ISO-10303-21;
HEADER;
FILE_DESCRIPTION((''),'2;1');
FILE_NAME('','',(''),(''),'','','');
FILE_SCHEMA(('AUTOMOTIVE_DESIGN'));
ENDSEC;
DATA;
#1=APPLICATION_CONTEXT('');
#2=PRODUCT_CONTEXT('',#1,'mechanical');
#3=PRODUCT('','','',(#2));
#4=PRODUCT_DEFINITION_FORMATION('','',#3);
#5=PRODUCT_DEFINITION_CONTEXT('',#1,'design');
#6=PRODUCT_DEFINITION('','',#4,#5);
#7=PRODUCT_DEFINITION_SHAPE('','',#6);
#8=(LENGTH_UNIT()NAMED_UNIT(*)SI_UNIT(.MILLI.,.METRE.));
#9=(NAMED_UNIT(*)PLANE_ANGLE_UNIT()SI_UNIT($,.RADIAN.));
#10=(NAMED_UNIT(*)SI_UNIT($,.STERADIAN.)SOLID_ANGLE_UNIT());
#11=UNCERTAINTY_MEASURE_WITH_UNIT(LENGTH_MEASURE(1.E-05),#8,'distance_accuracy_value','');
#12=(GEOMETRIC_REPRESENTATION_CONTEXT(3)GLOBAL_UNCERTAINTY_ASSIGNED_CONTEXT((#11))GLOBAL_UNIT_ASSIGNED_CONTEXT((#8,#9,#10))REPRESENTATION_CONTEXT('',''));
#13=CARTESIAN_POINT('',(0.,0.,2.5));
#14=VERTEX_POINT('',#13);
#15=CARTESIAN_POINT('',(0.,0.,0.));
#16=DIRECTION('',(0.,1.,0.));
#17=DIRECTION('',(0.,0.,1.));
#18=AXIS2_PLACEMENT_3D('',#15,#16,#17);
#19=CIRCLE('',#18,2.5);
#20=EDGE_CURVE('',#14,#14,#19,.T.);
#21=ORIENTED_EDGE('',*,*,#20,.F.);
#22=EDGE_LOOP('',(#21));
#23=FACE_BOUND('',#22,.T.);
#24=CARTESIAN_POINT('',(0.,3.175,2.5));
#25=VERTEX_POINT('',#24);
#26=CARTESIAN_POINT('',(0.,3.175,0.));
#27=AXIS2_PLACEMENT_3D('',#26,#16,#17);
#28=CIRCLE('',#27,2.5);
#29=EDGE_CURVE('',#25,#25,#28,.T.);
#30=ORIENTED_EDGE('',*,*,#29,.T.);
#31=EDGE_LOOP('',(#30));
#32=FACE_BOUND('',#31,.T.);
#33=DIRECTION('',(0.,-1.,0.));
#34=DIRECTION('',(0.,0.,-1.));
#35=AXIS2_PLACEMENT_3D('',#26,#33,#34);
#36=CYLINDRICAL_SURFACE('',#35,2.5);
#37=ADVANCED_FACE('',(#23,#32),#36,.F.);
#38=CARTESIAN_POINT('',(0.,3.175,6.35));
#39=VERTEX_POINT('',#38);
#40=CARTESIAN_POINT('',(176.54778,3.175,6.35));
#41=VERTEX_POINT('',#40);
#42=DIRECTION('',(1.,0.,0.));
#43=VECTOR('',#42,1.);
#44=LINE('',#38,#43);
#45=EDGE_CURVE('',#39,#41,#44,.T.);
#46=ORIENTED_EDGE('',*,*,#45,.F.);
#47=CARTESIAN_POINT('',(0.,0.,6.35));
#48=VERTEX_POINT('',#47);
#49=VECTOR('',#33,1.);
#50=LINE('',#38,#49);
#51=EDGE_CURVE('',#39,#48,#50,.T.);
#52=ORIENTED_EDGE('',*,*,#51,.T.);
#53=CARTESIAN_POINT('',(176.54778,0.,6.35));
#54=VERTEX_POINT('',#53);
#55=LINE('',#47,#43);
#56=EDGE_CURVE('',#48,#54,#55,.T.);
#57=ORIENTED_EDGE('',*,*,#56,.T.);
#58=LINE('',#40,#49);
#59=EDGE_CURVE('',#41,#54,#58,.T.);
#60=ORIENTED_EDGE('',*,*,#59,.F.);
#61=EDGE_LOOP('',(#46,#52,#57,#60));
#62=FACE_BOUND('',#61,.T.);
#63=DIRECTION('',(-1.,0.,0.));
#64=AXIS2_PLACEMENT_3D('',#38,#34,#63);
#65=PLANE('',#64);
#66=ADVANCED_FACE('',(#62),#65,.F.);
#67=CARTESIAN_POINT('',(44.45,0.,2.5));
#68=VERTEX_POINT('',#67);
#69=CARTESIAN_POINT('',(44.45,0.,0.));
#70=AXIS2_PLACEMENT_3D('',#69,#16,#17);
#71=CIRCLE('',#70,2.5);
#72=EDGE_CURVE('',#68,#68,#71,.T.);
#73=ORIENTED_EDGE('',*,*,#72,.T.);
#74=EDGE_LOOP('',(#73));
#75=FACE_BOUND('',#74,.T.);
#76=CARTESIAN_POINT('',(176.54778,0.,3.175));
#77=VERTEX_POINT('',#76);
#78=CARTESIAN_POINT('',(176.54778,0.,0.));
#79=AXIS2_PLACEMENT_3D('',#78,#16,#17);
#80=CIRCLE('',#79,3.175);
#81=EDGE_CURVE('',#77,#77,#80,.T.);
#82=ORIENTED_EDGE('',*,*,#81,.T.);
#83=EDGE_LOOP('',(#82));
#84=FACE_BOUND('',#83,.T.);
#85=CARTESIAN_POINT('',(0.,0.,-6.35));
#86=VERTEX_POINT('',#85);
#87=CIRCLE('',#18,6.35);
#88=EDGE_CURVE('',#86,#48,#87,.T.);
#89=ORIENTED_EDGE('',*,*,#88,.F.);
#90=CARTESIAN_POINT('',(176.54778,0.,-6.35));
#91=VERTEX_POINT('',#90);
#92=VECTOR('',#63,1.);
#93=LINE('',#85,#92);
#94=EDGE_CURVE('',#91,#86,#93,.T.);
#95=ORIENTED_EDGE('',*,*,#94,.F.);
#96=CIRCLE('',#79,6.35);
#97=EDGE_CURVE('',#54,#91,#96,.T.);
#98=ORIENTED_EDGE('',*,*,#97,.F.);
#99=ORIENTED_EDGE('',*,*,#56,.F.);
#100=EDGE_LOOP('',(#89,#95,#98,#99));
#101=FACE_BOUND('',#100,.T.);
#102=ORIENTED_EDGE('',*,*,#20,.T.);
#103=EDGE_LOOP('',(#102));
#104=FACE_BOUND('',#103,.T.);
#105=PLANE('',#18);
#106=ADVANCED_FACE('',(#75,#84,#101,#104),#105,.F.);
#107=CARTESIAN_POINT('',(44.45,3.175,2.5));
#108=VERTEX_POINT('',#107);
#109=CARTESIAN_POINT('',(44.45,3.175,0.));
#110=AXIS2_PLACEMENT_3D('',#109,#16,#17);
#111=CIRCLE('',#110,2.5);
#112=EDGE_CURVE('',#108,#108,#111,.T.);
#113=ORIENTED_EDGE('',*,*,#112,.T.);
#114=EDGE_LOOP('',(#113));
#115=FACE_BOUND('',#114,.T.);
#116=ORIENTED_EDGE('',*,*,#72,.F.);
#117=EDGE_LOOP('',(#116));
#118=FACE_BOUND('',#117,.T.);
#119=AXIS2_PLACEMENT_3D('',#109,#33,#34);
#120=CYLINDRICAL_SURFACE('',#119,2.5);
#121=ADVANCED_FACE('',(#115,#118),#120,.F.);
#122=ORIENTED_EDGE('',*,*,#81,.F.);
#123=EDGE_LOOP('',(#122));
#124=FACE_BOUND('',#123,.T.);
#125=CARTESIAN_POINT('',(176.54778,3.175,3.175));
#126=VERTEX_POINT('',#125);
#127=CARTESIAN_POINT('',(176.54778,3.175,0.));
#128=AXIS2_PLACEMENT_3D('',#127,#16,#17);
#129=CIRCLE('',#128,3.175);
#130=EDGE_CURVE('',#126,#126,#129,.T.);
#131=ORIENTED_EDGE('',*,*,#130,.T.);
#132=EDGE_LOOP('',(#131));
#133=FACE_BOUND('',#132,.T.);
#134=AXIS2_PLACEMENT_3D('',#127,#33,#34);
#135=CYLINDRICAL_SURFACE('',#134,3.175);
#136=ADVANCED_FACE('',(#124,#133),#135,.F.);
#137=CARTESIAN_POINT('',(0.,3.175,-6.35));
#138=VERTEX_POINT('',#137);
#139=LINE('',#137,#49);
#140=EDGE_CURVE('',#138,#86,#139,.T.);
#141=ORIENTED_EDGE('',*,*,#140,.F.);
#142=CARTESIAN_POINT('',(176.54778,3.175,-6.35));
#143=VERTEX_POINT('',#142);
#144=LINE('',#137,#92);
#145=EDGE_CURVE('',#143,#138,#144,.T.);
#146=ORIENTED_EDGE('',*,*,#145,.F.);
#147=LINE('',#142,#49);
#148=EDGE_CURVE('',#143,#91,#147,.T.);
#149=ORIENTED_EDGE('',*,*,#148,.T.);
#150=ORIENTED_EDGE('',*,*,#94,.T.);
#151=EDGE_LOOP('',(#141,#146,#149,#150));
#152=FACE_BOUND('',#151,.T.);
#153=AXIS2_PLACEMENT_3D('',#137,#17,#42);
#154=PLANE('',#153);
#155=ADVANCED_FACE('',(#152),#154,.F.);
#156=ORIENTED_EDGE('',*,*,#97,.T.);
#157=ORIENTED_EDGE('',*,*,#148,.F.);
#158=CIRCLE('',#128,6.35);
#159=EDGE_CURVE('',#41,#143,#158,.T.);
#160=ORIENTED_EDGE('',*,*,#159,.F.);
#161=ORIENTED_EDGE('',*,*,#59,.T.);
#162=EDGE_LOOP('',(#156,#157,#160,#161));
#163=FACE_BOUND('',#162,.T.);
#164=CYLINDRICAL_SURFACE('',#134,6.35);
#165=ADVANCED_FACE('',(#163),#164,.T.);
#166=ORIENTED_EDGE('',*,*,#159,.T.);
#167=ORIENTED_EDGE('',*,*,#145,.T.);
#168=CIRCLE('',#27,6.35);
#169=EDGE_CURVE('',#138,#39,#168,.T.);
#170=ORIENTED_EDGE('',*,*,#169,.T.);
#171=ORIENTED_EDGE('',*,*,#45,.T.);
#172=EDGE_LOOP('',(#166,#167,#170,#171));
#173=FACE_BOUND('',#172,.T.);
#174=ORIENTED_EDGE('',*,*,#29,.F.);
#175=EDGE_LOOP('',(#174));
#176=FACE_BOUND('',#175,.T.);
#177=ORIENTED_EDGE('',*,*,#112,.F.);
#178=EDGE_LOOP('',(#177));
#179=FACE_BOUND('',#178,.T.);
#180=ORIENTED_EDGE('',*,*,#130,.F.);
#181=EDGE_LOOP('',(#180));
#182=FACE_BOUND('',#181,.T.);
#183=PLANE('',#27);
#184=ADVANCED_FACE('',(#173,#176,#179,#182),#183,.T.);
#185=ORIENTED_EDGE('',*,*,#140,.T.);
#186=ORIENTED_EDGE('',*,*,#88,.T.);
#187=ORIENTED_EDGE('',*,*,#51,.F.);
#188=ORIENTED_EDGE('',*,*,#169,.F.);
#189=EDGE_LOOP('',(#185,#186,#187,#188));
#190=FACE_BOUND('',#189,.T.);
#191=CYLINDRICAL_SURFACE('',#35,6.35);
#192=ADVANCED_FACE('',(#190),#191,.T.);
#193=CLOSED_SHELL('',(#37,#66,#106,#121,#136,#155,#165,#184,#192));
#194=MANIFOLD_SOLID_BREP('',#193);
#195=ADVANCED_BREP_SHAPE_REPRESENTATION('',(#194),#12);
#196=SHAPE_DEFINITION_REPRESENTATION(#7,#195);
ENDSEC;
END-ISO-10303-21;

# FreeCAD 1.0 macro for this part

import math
import FreeCAD as App
import Part
import Sketcher
Q = App.Units.Quantity

doc = App.newDocument("Part")
body = doc.addObject("PartDesign::Body", "Body")

# Sketch on XZ plane
sketch1 = body.newObject("Sketcher::SketchObject", "Sketch")
sketch1.AttachmentSupport = (doc.getObject("XZ_Plane"), [""])
sketch1.MapMode = "FlatFace"
sketch1.addGeometry([
    Part.LineSegment(App.Vector(176.5, -6.3, 0), App.Vector(0, -6.3, 0)),  # 0
    Part.ArcOfCircle(Part.Circle(App.Vector(0, 0, 0), App.Vector(0, 0, 1), 6.3), math.radians(90), math.radians(270)),  # 1
    Part.LineSegment(App.Vector(0, 6.3, 0), App.Vector(176.5, 6.3, 0)),  # 2
    Part.ArcOfCircle(Part.Circle(App.Vector(176.5, 0, 0), App.Vector(0, 0, 1), 6.3), math.radians(-90), math.radians(90)),  # 3
    Part.Circle(App.Vector(176.5, 0, 0), App.Vector(0, 0, 1), 3.2),  # 4
    Part.Circle(App.Vector(44.5, 0, 0), App.Vector(0, 0, 1), 2.5),  # 5
    Part.Circle(App.Vector(0, 0, 0), App.Vector(0, 0, 1), 2.5),  # 6
], False)
sketch1.addConstraint([
    Sketcher.Constraint("Tangent", 0, 2, 1, 2),
    Sketcher.Constraint("Tangent", 1, 1, 2, 1),
    Sketcher.Constraint("Tangent", 2, 2, 3, 2),
    Sketcher.Constraint("Tangent", 3, 1, 0, 1),
    Sketcher.Constraint("Horizontal", 0),
    Sketcher.Constraint("Horizontal", 2),
    Sketcher.Constraint("Coincident", 1, 3, -1, 1),
    Sketcher.Constraint("Coincident", 6, 3, -1, 1),
    Sketcher.Constraint("Coincident", 4, 3, 3, 3),
    Sketcher.Constraint("Equal", 5, 6),
    Sketcher.Constraint("PointOnObject", 5, 3, -1),
    Sketcher.Constraint("Diameter", 4, Q("0.25 in")),
    Sketcher.Constraint("Radius", 1, Q("0.25 in")),
    Sketcher.Constraint("Diameter", 5, Q("5 mm")),
    Sketcher.Constraint("DistanceX", -1, 1, 5, 3, Q("1.75 in")),
    Sketcher.Constraint("DistanceX", 0, 2, 0, 1, Q("6.9507 in")),
])
pad1 = body.newObject("PartDesign::Pad", "Pad")
pad1.Profile = sketch1
pad1.Length = Q("0.125 in")
pad1.Reversed = True

doc.recompute()
